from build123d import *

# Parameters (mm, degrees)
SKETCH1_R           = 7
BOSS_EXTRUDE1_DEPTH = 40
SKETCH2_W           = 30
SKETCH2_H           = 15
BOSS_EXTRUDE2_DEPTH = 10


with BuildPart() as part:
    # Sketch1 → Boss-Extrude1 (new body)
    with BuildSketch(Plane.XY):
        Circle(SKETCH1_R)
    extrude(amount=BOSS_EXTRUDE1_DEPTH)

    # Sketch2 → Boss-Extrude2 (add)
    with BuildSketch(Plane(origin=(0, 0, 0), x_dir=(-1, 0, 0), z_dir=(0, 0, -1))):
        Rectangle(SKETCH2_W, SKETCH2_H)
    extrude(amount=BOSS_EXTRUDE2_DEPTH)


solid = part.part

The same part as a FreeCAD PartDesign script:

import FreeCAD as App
import Part
import Sketcher

V = App.Vector
Q = App.Units.Quantity

doc = App.newDocument("Part")
body = doc.addObject("PartDesign::Body", "Body")

# Sketch on XY plane
sketch1 = body.newObject("Sketcher::SketchObject", "Sketch")
sketch1.AttachmentSupport = (doc.getObject("XY_Plane"), [""])
sketch1.MapMode = "FlatFace"
sketch1.addGeometry(Part.Circle(V(0, 0, 0), V(0, 0, 1), 7), False)
sketch1.addConstraint([
    Sketcher.Constraint("Coincident", 0, 3, -1, 1),
    Sketcher.Constraint("Diameter", 0, Q("14 mm")),
])
pad1 = body.newObject("PartDesign::Pad", "Pad")
pad1.Profile = sketch1
pad1.Length = 40

# Sketch on XY plane
sketch2 = body.newObject("Sketcher::SketchObject", "Sketch001")
sketch2.AttachmentSupport = (doc.getObject("XY_Plane"), [""])
sketch2.MapMode = "FlatFace"
sketch2.addGeometry([
    Part.LineSegment(V(15, 8, 0), V(15, -8, 0)),
    Part.LineSegment(V(15, -8, 0), V(-15, -8, 0)),
    Part.LineSegment(V(-15, -8, 0), V(-15, 8, 0)),
    Part.LineSegment(V(-15, 8, 0), V(15, 8, 0)),
], False)
sketch2.addConstraint([
    Sketcher.Constraint("Coincident", 0, 2, 1, 1),
    Sketcher.Constraint("Coincident", 1, 2, 2, 1),
    Sketcher.Constraint("Coincident", 2, 2, 3, 1),
    Sketcher.Constraint("Coincident", 3, 2, 0, 1),
    Sketcher.Constraint("Vertical", 0),
    Sketcher.Constraint("Horizontal", 1),
    Sketcher.Constraint("Vertical", 2),
    Sketcher.Constraint("Horizontal", 3),
    Sketcher.Constraint("Symmetric", 0, 2, 2, 2, -1, 1),
    Sketcher.Constraint("DistanceX", 1, 2, 1, 1, Q("30 mm")),
    Sketcher.Constraint("DistanceY", 0, 2, 0, 1, Q("15 mm")),
])
pad2 = body.newObject("PartDesign::Pad", "Pad001")
pad2.Profile = sketch2
pad2.Length = 10
pad2.Reversed = True

doc.recompute()
